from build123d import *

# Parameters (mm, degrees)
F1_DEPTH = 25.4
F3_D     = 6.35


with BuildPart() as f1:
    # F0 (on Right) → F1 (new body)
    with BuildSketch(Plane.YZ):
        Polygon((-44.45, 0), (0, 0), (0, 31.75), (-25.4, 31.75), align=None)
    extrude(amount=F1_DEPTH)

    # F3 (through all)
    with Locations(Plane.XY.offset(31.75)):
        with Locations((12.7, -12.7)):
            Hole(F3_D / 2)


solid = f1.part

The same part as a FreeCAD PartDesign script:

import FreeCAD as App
import Part
import Sketcher

V = App.Vector
Q = App.Units.Quantity

doc = App.newDocument("Part")
params = doc.addObject("Spreadsheet::Sheet", "Params")
for row, (alias, value) in enumerate([
    ("sketch1_width", "1 in"),
    ("sketch1_width2", "1.75 in"),
    ("sketch1_height", "1.25 in"),
    ("pad1_length", "1 in"),
    ("sketch2_diameter", "0.25 in"),
    ("hole_diameter", "0.25 in"),
], start=1):
    params.set(f"A{row}", alias)
    params.set(f"B{row}", "=" + value)
    params.setAlias(f"B{row}", alias)

body = doc.addObject("PartDesign::Body", "Body")

# Sketch on YZ plane
sketch1 = body.newObject("Sketcher::SketchObject", "Sketch")
sketch1.AttachmentSupport = (doc.getObject("YZ_Plane"), [""])
sketch1.MapMode = "FlatFace"
sketch1.addGeometry([
    Part.LineSegment(V(-44.45, 0, 0), V(0, 0, 0)),
    Part.LineSegment(V(0, 0, 0), V(0, 31.75, 0)),
    Part.LineSegment(V(0, 31.75, 0), V(-25.4, 31.75, 0)),
    Part.LineSegment(V(-25.4, 31.75, 0), V(-44.45, 0, 0)),
], False)
sketch1.addConstraint([
    Sketcher.Constraint("Coincident", 0, 2, 1, 1),
    Sketcher.Constraint("Coincident", 1, 2, 2, 1),
    Sketcher.Constraint("Coincident", 2, 2, 3, 1),
    Sketcher.Constraint("Coincident", 3, 2, 0, 1),
    Sketcher.Constraint("Horizontal", 0),
    Sketcher.Constraint("Vertical", 1),
    Sketcher.Constraint("Horizontal", 2),
    Sketcher.Constraint("Coincident", 0, 2, -1, 1),
    Sketcher.Constraint("DistanceX", 2, 2, 2, 1, Q("1 in")),
    Sketcher.Constraint("DistanceX", 0, 1, 0, 2, Q("1.75 in")),
    Sketcher.Constraint("DistanceY", 1, 1, 1, 2, Q("1.25 in")),
])
sketch1.setExpression("Constraints[8]", "Params.sketch1_width")
sketch1.setExpression("Constraints[9]", "Params.sketch1_width2")
sketch1.setExpression("Constraints[10]", "Params.sketch1_height")
pad1 = body.newObject("PartDesign::Pad", "Pad")
pad1.Profile = sketch1
pad1.setExpression("Length", "Params.pad1_length")

# Sketch on XY plane
sketch2 = body.newObject("Sketcher::SketchObject", "Sketch001")
sketch2.AttachmentSupport = (doc.getObject("XY_Plane"), [""])
sketch2.MapMode = "FlatFace"
sketch2.AttachmentOffset = App.Placement(V(0, 0, 1.25 * 25.4), App.Rotation())
sketch2.addGeometry(Part.Circle(V(12.7, -12.7, 0), V(0, 0, 1), 3.175), False)
sketch2.addConstraint([
    Sketcher.Constraint("Diameter", 0, Q("0.25 in")),
    Sketcher.Constraint("DistanceX", -1, 1, 0, 3, Q("0.5 in")),
    Sketcher.Constraint("DistanceY", 0, 3, -1, 1, Q("0.5 in")),
])
sketch2.setExpression("Constraints[0]", "Params.sketch2_diameter")
doc.recompute()
hole = body.newObject("PartDesign::Hole", "Hole")
hole.Profile = sketch2
hole.ThreadType = "None"
hole.setExpression("Diameter", "Params.hole_diameter")
hole.DepthType = "ThroughAll"

doc.recompute()
